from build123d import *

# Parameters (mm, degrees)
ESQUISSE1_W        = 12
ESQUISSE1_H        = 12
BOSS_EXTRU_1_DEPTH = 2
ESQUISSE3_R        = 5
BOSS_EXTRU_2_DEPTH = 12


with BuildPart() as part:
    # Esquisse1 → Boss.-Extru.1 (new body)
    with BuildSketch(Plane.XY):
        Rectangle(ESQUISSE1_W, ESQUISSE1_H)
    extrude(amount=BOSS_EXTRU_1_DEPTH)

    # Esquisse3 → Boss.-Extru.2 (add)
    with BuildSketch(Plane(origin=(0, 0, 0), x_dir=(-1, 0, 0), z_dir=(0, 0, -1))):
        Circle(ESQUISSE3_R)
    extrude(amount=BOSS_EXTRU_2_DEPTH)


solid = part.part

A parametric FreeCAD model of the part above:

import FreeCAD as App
import Part
import Sketcher
from FreeCAD import Vector
Q = App.Units.Quantity


def add_polygon(sketch, points):
    """Adds a closed chain of lines whose ends are joined by coincident constraints."""
    first, n = sketch.GeometryCount, len(points)
    for a, b in zip(points, points[1:] + points[:1]):
        sketch.addGeometry(Part.LineSegment(App.Vector(*a, 0), App.Vector(*b, 0)), False)
    for i in range(n):
        sketch.addConstraint(Sketcher.Constraint("Coincident", first + i, 2, first + (i + 1) % n, 1))

doc = App.newDocument("Part")
body = doc.addObject("PartDesign::Body", "Body")

# Sketch on XY plane
sketch1 = body.newObject("Sketcher::SketchObject", "Sketch")
sketch1.AttachmentSupport = (doc.getObject("XY_Plane"), [""])
sketch1.MapMode = "FlatFace"
add_polygon(sketch1, [(-6, 6), (-6, -6), (6, -6), (6, 6)])  # lines 0-3
sketch1.addConstraint([
    Sketcher.Constraint("Vertical", 0),
    Sketcher.Constraint("Horizontal", 1),
    Sketcher.Constraint("Vertical", 2),
    Sketcher.Constraint("Horizontal", 3),
    Sketcher.Constraint("Symmetric", 0, 2, 2, 2, -1, 1),
    Sketcher.Constraint("Equal", 3, 0),
    Sketcher.Constraint("DistanceX", 1, 1, 1, 2, Q("12 mm")),
])
pad1 = body.newObject("PartDesign::Pad", "Pad")
pad1.Profile = sketch1
pad1.Length = 2

# Sketch on XY plane
sketch2 = body.newObject("Sketcher::SketchObject", "Sketch001")
sketch2.AttachmentSupport = (doc.getObject("XY_Plane"), [""])
sketch2.MapMode = "FlatFace"
sketch2.addGeometry(Part.Circle(Vector(0, 0, 0), Vector(0, 0, 1), 5), False)
sketch2.addConstraint([
    Sketcher.Constraint("Coincident", 0, 3, -1, 1),
    Sketcher.Constraint("Diameter", 0, Q("10 mm")),
])
pad2 = body.newObject("PartDesign::Pad", "Pad001")
pad2.Profile = sketch2
pad2.Length = 12
pad2.Reversed = True

doc.recompute()
